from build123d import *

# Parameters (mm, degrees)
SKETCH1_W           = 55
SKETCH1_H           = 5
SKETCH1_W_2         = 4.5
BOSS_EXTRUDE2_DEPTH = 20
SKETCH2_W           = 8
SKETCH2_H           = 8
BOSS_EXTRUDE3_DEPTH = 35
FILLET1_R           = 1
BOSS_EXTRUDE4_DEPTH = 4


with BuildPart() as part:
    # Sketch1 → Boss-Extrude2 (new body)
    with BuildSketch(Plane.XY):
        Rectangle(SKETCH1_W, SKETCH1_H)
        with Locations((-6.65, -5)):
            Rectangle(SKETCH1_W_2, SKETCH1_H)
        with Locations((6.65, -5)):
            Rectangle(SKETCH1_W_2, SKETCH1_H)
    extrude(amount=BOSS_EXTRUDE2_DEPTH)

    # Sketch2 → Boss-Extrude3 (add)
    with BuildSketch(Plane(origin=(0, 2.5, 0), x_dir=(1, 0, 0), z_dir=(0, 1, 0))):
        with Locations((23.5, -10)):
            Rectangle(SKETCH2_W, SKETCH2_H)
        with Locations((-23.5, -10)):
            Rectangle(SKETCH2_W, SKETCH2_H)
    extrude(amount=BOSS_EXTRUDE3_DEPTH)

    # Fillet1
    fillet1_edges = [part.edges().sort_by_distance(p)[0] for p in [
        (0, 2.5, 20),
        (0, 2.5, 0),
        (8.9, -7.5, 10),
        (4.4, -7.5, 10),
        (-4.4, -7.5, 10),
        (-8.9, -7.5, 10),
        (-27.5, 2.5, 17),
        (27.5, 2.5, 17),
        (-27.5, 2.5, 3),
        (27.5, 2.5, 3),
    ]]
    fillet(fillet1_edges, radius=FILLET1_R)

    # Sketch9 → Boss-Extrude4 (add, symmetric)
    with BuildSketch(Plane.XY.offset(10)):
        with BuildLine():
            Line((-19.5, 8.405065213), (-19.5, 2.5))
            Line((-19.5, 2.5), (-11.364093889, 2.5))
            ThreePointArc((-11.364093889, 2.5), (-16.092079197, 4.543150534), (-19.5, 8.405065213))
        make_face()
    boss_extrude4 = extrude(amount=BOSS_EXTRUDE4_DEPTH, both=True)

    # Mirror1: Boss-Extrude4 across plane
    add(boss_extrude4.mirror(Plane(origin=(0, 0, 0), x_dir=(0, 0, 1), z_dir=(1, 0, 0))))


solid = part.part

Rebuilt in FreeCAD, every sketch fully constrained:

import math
import FreeCAD as App
import Part
import Sketcher


def edges_at(feature, points):
    """Names of the edges that pass closest to the given points."""
    edges = feature.Shape.Edges
    near = lambda p: min(range(len(edges)), key=lambda i: edges[i].distToShape(Part.Vertex(*p))[0])
    return sorted({f"Edge{near(p) + 1}" for p in points})

doc = App.newDocument("Part")
params = doc.addObject("Spreadsheet::Sheet", "Params")
for row, (alias, value) in enumerate([
    ("sketch1_width", "55 mm"),
    ("sketch1_height", "5 mm"),
    ("sketch1_width2", "18.6 mm"),
    ("sketch1_width3", "4.5 mm"),
    ("pad1_length", "20 mm"),
    ("sketch2_width", "8 mm"),
    ("pad2_length", "35 mm"),
    ("fillet_radius", "1 mm"),
    ("pad3_length", "8 mm"),
], start=1):
    params.set(f"A{row}", alias)
    params.set(f"B{row}", "=" + value)
    params.setAlias(f"B{row}", alias)

body = doc.addObject("PartDesign::Body", "Body")

# Sketch on XY plane
sketch1 = body.newObject("Sketcher::SketchObject", "Sketch")
sketch1.AttachmentSupport = (doc.getObject("XY_Plane"), [""])
sketch1.MapMode = "FlatFace"
sketch1.addGeometry([
    Part.LineSegment(App.Vector(-27.5, 2.5, 0), App.Vector(-27.5, -2.5, 0)),  # 0
    Part.LineSegment(App.Vector(-27.5, -2.5, 0), App.Vector(-8.9, -2.5, 0)),  # 1
    Part.LineSegment(App.Vector(-8.9, -2.5, 0), App.Vector(-8.9, -7.5, 0)),  # 2
    Part.LineSegment(App.Vector(-8.9, -7.5, 0), App.Vector(-4.4, -7.5, 0)),  # 3
    Part.LineSegment(App.Vector(-4.4, -7.5, 0), App.Vector(-4.4, -2.5, 0)),  # 4
    Part.LineSegment(App.Vector(-4.4, -2.5, 0), App.Vector(4.4, -2.5, 0)),  # 5
    Part.LineSegment(App.Vector(4.4, -2.5, 0), App.Vector(4.4, -7.5, 0)),  # 6
    Part.LineSegment(App.Vector(4.4, -7.5, 0), App.Vector(8.9, -7.5, 0)),  # 7
    Part.LineSegment(App.Vector(8.9, -7.5, 0), App.Vector(8.9, -2.5, 0)),  # 8
    Part.LineSegment(App.Vector(8.9, -2.5, 0), App.Vector(27.5, -2.5, 0)),  # 9
    Part.LineSegment(App.Vector(27.5, -2.5, 0), App.Vector(27.5, 2.5, 0)),  # 10
    Part.LineSegment(App.Vector(27.5, 2.5, 0), App.Vector(-27.5, 2.5, 0)),  # 11
], False)
sketch1.addConstraint([
    Sketcher.Constraint("Coincident", 0, 2, 1, 1),
    Sketcher.Constraint("Coincident", 1, 2, 2, 1),
    Sketcher.Constraint("Coincident", 2, 2, 3, 1),
    Sketcher.Constraint("Coincident", 3, 2, 4, 1),
    Sketcher.Constraint("Coincident", 4, 2, 5, 1),
    Sketcher.Constraint("Coincident", 5, 2, 6, 1),
    Sketcher.Constraint("Coincident", 6, 2, 7, 1),
    Sketcher.Constraint("Coincident", 7, 2, 8, 1),
    Sketcher.Constraint("Coincident", 8, 2, 9, 1),
    Sketcher.Constraint("Coincident", 9, 2, 10, 1),
    Sketcher.Constraint("Coincident", 10, 2, 11, 1),
    Sketcher.Constraint("Coincident", 11, 2, 0, 1),
    Sketcher.Constraint("Vertical", 0),
    Sketcher.Constraint("Horizontal", 1),
    Sketcher.Constraint("Vertical", 2),
    Sketcher.Constraint("Horizontal", 3),
    Sketcher.Constraint("Vertical", 4),
    Sketcher.Constraint("Horizontal", 5),
    Sketcher.Constraint("Vertical", 6),
    Sketcher.Constraint("Horizontal", 7),
    Sketcher.Constraint("Vertical", 8),
    Sketcher.Constraint("Horizontal", 9),
    Sketcher.Constraint("Vertical", 10),
    Sketcher.Constraint("Horizontal", 11),
    Sketcher.Constraint("Symmetric", 0, 2, 10, 2, -1, 1),
    Sketcher.Constraint("Symmetric", 3, 2, 6, 2, -2),
    Sketcher.Constraint("Symmetric", 1, 2, 8, 2, -2),
    Sketcher.Constraint("Horizontal", 1, 2, 4, 2),
    Sketcher.Constraint("Equal", 0, 2),
    Sketcher.Constraint("DistanceX", 11, 2, 11, 1, 55.0),
    Sketcher.Constraint("DistanceY", 0, 2, 0, 1, 5.0),
    Sketcher.Constraint("DistanceX", 1, 1, 1, 2, 18.6),
    Sketcher.Constraint("DistanceX", 3, 1, 3, 2, 4.5),
])
sketch1.setExpression("Constraints[29]", "Params.sketch1_width")
sketch1.setExpression("Constraints[30]", "Params.sketch1_height")
sketch1.setExpression("Constraints[31]", "Params.sketch1_width2")
sketch1.setExpression("Constraints[32]", "Params.sketch1_width3")
pad1 = body.newObject("PartDesign::Pad", "Pad")
pad1.Profile = sketch1
pad1.setExpression("Length", "Params.pad1_length")

# Sketch on XZ plane
sketch2 = body.newObject("Sketcher::SketchObject", "Sketch001")
sketch2.AttachmentSupport = (doc.getObject("XZ_Plane"), [""])
sketch2.MapMode = "FlatFace"
sketch2.AttachmentOffset = App.Placement(App.Vector(0, 0, -2.5), App.Rotation())
sketch2.addGeometry([
    Part.LineSegment(App.Vector(20, 6, 0), App.Vector(20, 14, 0)),  # 0
    Part.LineSegment(App.Vector(20, 14, 0), App.Vector(28, 14, 0)),  # 1
    Part.LineSegment(App.Vector(28, 14, 0), App.Vector(28, 6, 0)),  # 2
    Part.LineSegment(App.Vector(28, 6, 0), App.Vector(20, 6, 0)),  # 3
    Part.LineSegment(App.Vector(-28, 6, 0), App.Vector(-28, 14, 0)),  # 4
    Part.LineSegment(App.Vector(-28, 14, 0), App.Vector(-20, 14, 0)),  # 5
    Part.LineSegment(App.Vector(-20, 14, 0), App.Vector(-20, 6, 0)),  # 6
    Part.LineSegment(App.Vector(-20, 6, 0), App.Vector(-28, 6, 0)),  # 7
], False)
sketch2.addConstraint([
    Sketcher.Constraint("Coincident", 0, 2, 1, 1),
    Sketcher.Constraint("Coincident", 1, 2, 2, 1),
    Sketcher.Constraint("Coincident", 2, 2, 3, 1),
    Sketcher.Constraint("Coincident", 3, 2, 0, 1),
    Sketcher.Constraint("Coincident", 4, 2, 5, 1),
    Sketcher.Constraint("Coincident", 5, 2, 6, 1),
    Sketcher.Constraint("Coincident", 6, 2, 7, 1),
    Sketcher.Constraint("Coincident", 7, 2, 4, 1),
    Sketcher.Constraint("Vertical", 0),
    Sketcher.Constraint("Horizontal", 1),
    Sketcher.Constraint("Vertical", 2),
    Sketcher.Constraint("Horizontal", 3),
    Sketcher.Constraint("Vertical", 4),
    Sketcher.Constraint("Horizontal", 5),
    Sketcher.Constraint("Vertical", 6),
    Sketcher.Constraint("Horizontal", 7),
    Sketcher.Constraint("Symmetric", 1, 2, 4, 2, -2),
    Sketcher.Constraint("Symmetric", 3, 2, 6, 2, -2),
    Sketcher.Constraint("Equal", 7, 0),
    Sketcher.Constraint("DistanceX", 1, 1, 1, 2, 8.0),
    Sketcher.Constraint("DistanceY", -1, 1, 0, 2, 14.0),
    Sketcher.Constraint("DistanceX", 4, 2, 0, 2, 47.0),
])
sketch2.setExpression("Constraints[19]", "Params.sketch2_width")
pad2 = body.newObject("PartDesign::Pad", "Pad001")
pad2.Profile = sketch2
pad2.setExpression("Length", "Params.pad2_length")
pad2.Reversed = True
doc.recompute()

fillet = body.newObject("PartDesign::Fillet", "Fillet")
fillet.Base = (pad2, edges_at(pad2, [
    (0, 2.5, 20),
    (0, 2.5, 0),
    (8.9, -7.5, 10),
    (4.4, -7.5, 10),
    (-4.4, -7.5, 10),
    (-8.9, -7.5, 10),
    (-27.5, 2.5, 17),
    (27.5, 2.5, 17),
    (-27.5, 2.5, 3),
    (27.5, 2.5, 3),
]))
fillet.setExpression("Radius", "Params.fillet_radius")

# Sketch on XY plane
sketch3 = body.newObject("Sketcher::SketchObject", "Sketch002")
sketch3.AttachmentSupport = (doc.getObject("XY_Plane"), [""])
sketch3.MapMode = "FlatFace"
sketch3.AttachmentOffset = App.Placement(App.Vector(0, 0, 10), App.Rotation())
sketch3.addGeometry([
    Part.LineSegment(App.Vector(-20, 8, 0), App.Vector(-20, 2, 0)),
    Part.LineSegment(App.Vector(-20, 2, 0), App.Vector(-11, 2, 0)),
    Part.ArcOfCircle(Part.Circle(App.Vector(-9, 14, 0), App.Vector(0, 0, 1), 12), math.radians(-151), math.radians(-101)),
], False)
sketch3.addConstraint([
    Sketcher.Constraint("Coincident", 0, 2, 1, 1),
    Sketcher.Constraint("Coincident", 1, 2, 2, 2),
    Sketcher.Constraint("Coincident", 2, 1, 0, 1),
    Sketcher.Constraint("Vertical", 0),
    Sketcher.Constraint("Horizontal", 1),
    Sketcher.Constraint("DistanceX", 0, 2, -1, 1, 19.5),
    Sketcher.Constraint("DistanceY", -1, 1, 0, 2, 2.5),
    Sketcher.Constraint("Radius", 2, 11.804389),
    Sketcher.Constraint("DistanceX", 1, 1, 1, 2, 8.135906),
    Sketcher.Constraint("DistanceY", 0, 2, 0, 1, 5.905065),
])
pad3 = body.newObject("PartDesign::Pad", "Pad002")
pad3.Profile = sketch3
pad3.setExpression("Length", "Params.pad3_length")
pad3.Midplane = True
doc.recompute()

mirrored = body.newObject("PartDesign::Mirrored", "Mirrored")
mirrored.Originals = [pad3]
mirrored.MirrorPlane = (doc.getObject("YZ_Plane"), [""])
body.Tip = mirrored

doc.recompute()
